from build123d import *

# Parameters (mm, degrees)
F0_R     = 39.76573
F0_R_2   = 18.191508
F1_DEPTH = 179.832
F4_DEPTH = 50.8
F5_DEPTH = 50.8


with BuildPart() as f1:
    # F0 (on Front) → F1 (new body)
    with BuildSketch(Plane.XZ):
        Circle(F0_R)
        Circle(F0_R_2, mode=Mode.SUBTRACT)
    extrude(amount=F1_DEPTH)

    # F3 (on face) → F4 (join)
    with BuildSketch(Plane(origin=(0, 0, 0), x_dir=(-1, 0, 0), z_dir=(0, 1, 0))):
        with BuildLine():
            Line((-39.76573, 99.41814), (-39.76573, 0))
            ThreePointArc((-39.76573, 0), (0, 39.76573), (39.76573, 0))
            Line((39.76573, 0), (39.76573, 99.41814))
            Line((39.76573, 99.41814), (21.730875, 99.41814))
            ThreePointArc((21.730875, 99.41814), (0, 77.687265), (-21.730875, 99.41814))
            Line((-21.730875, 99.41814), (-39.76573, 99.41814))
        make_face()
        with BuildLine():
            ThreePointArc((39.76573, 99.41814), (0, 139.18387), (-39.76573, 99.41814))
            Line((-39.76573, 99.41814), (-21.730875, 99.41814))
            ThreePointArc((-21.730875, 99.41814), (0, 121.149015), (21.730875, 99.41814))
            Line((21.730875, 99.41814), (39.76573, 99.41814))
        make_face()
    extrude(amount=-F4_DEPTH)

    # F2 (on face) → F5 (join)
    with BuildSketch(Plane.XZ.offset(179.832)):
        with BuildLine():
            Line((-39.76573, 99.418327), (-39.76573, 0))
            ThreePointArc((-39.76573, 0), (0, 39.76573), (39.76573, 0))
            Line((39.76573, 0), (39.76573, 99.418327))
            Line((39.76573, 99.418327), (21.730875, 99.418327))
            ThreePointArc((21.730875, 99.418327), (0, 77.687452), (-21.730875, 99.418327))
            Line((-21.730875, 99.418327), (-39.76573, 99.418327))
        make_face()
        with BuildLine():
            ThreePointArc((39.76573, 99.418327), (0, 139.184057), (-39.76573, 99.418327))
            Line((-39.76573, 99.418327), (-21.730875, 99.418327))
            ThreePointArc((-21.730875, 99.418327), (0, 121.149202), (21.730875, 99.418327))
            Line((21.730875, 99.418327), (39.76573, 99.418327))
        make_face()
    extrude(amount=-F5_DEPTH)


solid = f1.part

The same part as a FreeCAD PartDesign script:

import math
import FreeCAD as App
import Part
import Sketcher
Q = App.Units.Quantity

doc = App.newDocument("Part")
body = doc.addObject("PartDesign::Body", "Body")

sketch1 = body.newObject("Sketcher::SketchObject", "Sketch")
sketch1.AttachmentSupport = (doc.getObject("XZ_Plane"), [""])
sketch1.MapMode = "FlatFace"
sketch1.addGeometry([
    Part.Circle(App.Vector(0, 0, 0), App.Vector(0, 0, 1), 40),
    Part.Circle(App.Vector(0, 0, 0), App.Vector(0, 0, 1), 18),
], False)
sketch1.addConstraint([
    Sketcher.Constraint("Coincident", 0, 3, -1, 1),
    Sketcher.Constraint("Coincident", 1, 3, -1, 1),
    Sketcher.Constraint("Diameter", 0, 79.53146),
    Sketcher.Constraint("Diameter", 1, 36.383016),
])
pad1 = body.newObject("PartDesign::Pad", "Pad")
pad1.Profile = sketch1
pad1.Length = Q("7.08 in")

sketch2 = body.newObject("Sketcher::SketchObject", "Sketch001")
sketch2.AttachmentSupport = (doc.getObject("XZ_Plane"), [""])
sketch2.MapMode = "FlatFace"
sketch2.addGeometry([
    Part.LineSegment(App.Vector(40, 99, 0), App.Vector(40, 0, 0)),
    Part.ArcOfCircle(Part.Circle(App.Vector(0, 0, 0), App.Vector(0, 0, 1), 40), math.radians(0), math.radians(180)),
    Part.LineSegment(App.Vector(-40, 0, 0), App.Vector(-40, 99, 0)),
    Part.ArcOfCircle(Part.Circle(App.Vector(0, 99, 0), App.Vector(0, 0, 1), 40), math.radians(0), math.radians(180)),
    Part.Circle(App.Vector(0, 99, 0), App.Vector(0, 0, 1), 22),
], False)
sketch2.addConstraint([
    Sketcher.Constraint("Tangent", 0, 2, 1, 1),
    Sketcher.Constraint("Tangent", 1, 2, 2, 1),
    Sketcher.Constraint("Tangent", 2, 2, 3, 2),
    Sketcher.Constraint("Tangent", 3, 1, 0, 1),
    Sketcher.Constraint("Vertical", 0),
    Sketcher.Constraint("Vertical", 2),
    Sketcher.Constraint("Coincident", 1, 3, -1, 1),
    Sketcher.Constraint("Coincident", 4, 3, 3, 3),
    Sketcher.Constraint("Diameter", 4, 43.46175),
    Sketcher.Constraint("DistanceY", 0, 2, 0, 1, Q("3.9141 in")),
    Sketcher.Constraint("Radius", 1, 39.76573),
])
pad2 = body.newObject("PartDesign::Pad", "Pad001")
pad2.Profile = sketch2
pad2.Length = Q("2 in")

sketch3 = body.newObject("Sketcher::SketchObject", "Sketch002")
sketch3.AttachmentSupport = (doc.getObject("XZ_Plane"), [""])
sketch3.MapMode = "FlatFace"
sketch3.AttachmentOffset = App.Placement(App.Vector(0, 0, 7.08 * 25.4), App.Rotation())
sketch3.addGeometry([
    Part.LineSegment(App.Vector(-40, 99, 0), App.Vector(-40, 0, 0)),
    Part.ArcOfCircle(Part.Circle(App.Vector(0, 0, 0), App.Vector(0, 0, 1), 40), math.radians(0), math.radians(180)),
    Part.LineSegment(App.Vector(40, 0, 0), App.Vector(40, 99, 0)),
    Part.ArcOfCircle(Part.Circle(App.Vector(0, 99, 0), App.Vector(0, 0, 1), 40), math.radians(0), math.radians(180)),
    Part.Circle(App.Vector(0, 99, 0), App.Vector(0, 0, 1), 22),
], False)
sketch3.addConstraint([
    Sketcher.Constraint("Tangent", 0, 2, 1, 2),
    Sketcher.Constraint("Tangent", 1, 1, 2, 1),
    Sketcher.Constraint("Tangent", 2, 2, 3, 1),
    Sketcher.Constraint("Tangent", 3, 2, 0, 1),
    Sketcher.Constraint("Vertical", 0),
    Sketcher.Constraint("Vertical", 2),
    Sketcher.Constraint("Coincident", 1, 3, -1, 1),
    Sketcher.Constraint("Coincident", 4, 3, 3, 3),
    Sketcher.Constraint("Diameter", 4, 43.46175),
    Sketcher.Constraint("Radius", 1, 39.76573),
    Sketcher.Constraint("DistanceY", 0, 2, 0, 1, 99.418327),
])
pad3 = body.newObject("PartDesign::Pad", "Pad002")
pad3.Profile = sketch3
pad3.Length = Q("2 in")
pad3.Reversed = True

doc.recompute()
